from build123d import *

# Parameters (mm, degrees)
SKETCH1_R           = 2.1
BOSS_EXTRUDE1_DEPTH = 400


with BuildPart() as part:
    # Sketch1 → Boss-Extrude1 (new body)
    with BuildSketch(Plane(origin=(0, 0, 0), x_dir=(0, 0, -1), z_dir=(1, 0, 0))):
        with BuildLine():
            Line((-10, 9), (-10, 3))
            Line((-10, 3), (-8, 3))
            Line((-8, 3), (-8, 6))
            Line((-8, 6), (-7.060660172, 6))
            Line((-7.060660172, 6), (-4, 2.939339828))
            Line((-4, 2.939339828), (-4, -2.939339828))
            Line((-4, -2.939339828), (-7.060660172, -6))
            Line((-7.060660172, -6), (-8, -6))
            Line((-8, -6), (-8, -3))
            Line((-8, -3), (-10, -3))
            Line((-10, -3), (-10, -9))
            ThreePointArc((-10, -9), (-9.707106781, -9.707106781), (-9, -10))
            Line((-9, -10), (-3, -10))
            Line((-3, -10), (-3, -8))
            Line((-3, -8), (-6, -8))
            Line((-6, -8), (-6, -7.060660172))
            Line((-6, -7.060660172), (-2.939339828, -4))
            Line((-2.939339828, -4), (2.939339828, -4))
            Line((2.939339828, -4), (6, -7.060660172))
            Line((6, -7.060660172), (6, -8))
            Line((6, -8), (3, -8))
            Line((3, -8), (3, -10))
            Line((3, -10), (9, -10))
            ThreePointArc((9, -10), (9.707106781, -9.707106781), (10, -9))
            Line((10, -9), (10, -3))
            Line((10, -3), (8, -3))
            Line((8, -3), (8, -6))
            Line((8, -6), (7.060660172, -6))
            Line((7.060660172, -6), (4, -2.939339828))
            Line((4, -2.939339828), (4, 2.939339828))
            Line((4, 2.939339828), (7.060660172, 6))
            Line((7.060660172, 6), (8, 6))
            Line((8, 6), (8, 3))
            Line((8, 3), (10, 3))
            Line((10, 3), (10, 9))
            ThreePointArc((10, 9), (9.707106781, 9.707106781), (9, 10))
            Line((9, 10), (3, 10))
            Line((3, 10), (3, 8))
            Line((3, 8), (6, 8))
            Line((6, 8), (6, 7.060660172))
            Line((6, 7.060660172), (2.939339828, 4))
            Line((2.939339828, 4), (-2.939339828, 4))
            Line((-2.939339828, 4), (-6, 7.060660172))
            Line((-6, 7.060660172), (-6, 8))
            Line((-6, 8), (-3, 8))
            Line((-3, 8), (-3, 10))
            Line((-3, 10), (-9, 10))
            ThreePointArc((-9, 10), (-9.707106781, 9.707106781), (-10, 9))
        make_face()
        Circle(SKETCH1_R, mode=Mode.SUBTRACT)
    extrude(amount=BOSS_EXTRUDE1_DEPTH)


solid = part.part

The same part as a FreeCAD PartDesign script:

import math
import FreeCAD as App
import Part
import Sketcher
from FreeCAD import Vector

doc = App.newDocument("Part")
body = doc.addObject("PartDesign::Body", "Body")

# Sketch on YZ plane
sketch1 = doc.addObject("Sketcher::SketchObject", "Sketch")
body.addObject(sketch1)
sketch1.AttachmentSupport = (doc.YZ_Plane, [""])
sketch1.MapMode = "FlatFace"
sketch1.addGeometry([
    Part.LineSegment(Vector(9, 10, 0), Vector(3, 10, 0)),  # 0
    Part.LineSegment(Vector(3, 10, 0), Vector(3, 8, 0)),  # 1
    Part.LineSegment(Vector(3, 8, 0), Vector(6, 8, 0)),  # 2
    Part.LineSegment(Vector(6, 8, 0), Vector(6, 7.1, 0)),  # 3
    Part.LineSegment(Vector(6, 7.1, 0), Vector(2.9, 4, 0)),  # 4
    Part.LineSegment(Vector(2.9, 4, 0), Vector(-2.9, 4, 0)),  # 5
    Part.LineSegment(Vector(-2.9, 4, 0), Vector(-6, 7.1, 0)),  # 6
    Part.LineSegment(Vector(-6, 7.1, 0), Vector(-6, 8, 0)),  # 7
    Part.LineSegment(Vector(-6, 8, 0), Vector(-3, 8, 0)),  # 8
    Part.LineSegment(Vector(-3, 8, 0), Vector(-3, 10, 0)),  # 9
    Part.LineSegment(Vector(-3, 10, 0), Vector(-9, 10, 0)),  # 10
    Part.ArcOfCircle(Part.Circle(Vector(-9, 9, 0), Vector(0, 0, 1), 1), math.radians(90), math.radians(180)),  # 11
    Part.LineSegment(Vector(-10, 9, 0), Vector(-10, 3, 0)),  # 12
    Part.LineSegment(Vector(-10, 3, 0), Vector(-8, 3, 0)),  # 13
    Part.LineSegment(Vector(-8, 3, 0), Vector(-8, 6, 0)),  # 14
    Part.LineSegment(Vector(-8, 6, 0), Vector(-7.1, 6, 0)),  # 15
    Part.LineSegment(Vector(-7.1, 6, 0), Vector(-4, 2.9, 0)),  # 16
    Part.LineSegment(Vector(-4, 2.9, 0), Vector(-4, -2.9, 0)),  # 17
    Part.LineSegment(Vector(-4, -2.9, 0), Vector(-7.1, -6, 0)),  # 18
    Part.LineSegment(Vector(-7.1, -6, 0), Vector(-8, -6, 0)),  # 19
    Part.LineSegment(Vector(-8, -6, 0), Vector(-8, -3, 0)),  # 20
    Part.LineSegment(Vector(-8, -3, 0), Vector(-10, -3, 0)),  # 21
    Part.LineSegment(Vector(-10, -3, 0), Vector(-10, -9, 0)),  # 22
    Part.ArcOfCircle(Part.Circle(Vector(-9, -9, 0), Vector(0, 0, 1), 1), math.radians(-180), math.radians(-90)),  # 23
    Part.LineSegment(Vector(-9, -10, 0), Vector(-3, -10, 0)),  # 24
    Part.LineSegment(Vector(-3, -10, 0), Vector(-3, -8, 0)),  # 25
    Part.LineSegment(Vector(-3, -8, 0), Vector(-6, -8, 0)),  # 26
    Part.LineSegment(Vector(-6, -8, 0), Vector(-6, -7.1, 0)),  # 27
    Part.LineSegment(Vector(-6, -7.1, 0), Vector(-2.9, -4, 0)),  # 28
    Part.LineSegment(Vector(-2.9, -4, 0), Vector(2.9, -4, 0)),  # 29
    Part.LineSegment(Vector(2.9, -4, 0), Vector(6, -7.1, 0)),  # 30
    Part.LineSegment(Vector(6, -7.1, 0), Vector(6, -8, 0)),  # 31
    Part.LineSegment(Vector(6, -8, 0), Vector(3, -8, 0)),  # 32
    Part.LineSegment(Vector(3, -8, 0), Vector(3, -10, 0)),  # 33
    Part.LineSegment(Vector(3, -10, 0), Vector(9, -10, 0)),  # 34
    Part.ArcOfCircle(Part.Circle(Vector(9, -9, 0), Vector(0, 0, 1), 1), math.radians(-90), math.radians(0)),  # 35
    Part.LineSegment(Vector(10, -9, 0), Vector(10, -3, 0)),  # 36
    Part.LineSegment(Vector(10, -3, 0), Vector(8, -3, 0)),  # 37
    Part.LineSegment(Vector(8, -3, 0), Vector(8, -6, 0)),  # 38
    Part.LineSegment(Vector(8, -6, 0), Vector(7.1, -6, 0)),  # 39
    Part.LineSegment(Vector(7.1, -6, 0), Vector(4, -2.9, 0)),  # 40
    Part.LineSegment(Vector(4, -2.9, 0), Vector(4, 2.9, 0)),  # 41
    Part.LineSegment(Vector(4, 2.9, 0), Vector(7.1, 6, 0)),  # 42
    Part.LineSegment(Vector(7.1, 6, 0), Vector(8, 6, 0)),  # 43
    Part.LineSegment(Vector(8, 6, 0), Vector(8, 3, 0)),  # 44
    Part.LineSegment(Vector(8, 3, 0), Vector(10, 3, 0)),  # 45
    Part.LineSegment(Vector(10, 3, 0), Vector(10, 9, 0)),  # 46
    Part.ArcOfCircle(Part.Circle(Vector(9, 9, 0), Vector(0, 0, 1), 1), math.radians(0), math.radians(90)),  # 47
    Part.Circle(Vector(0, 0, 0), Vector(0, 0, 1), 2.1),  # 48
], False)
sketch1.addConstraint([
    Sketcher.Constraint("Coincident", 0, 2, 1, 1),
    Sketcher.Constraint("Coincident", 1, 2, 2, 1),
    Sketcher.Constraint("Coincident", 2, 2, 3, 1),
    Sketcher.Constraint("Coincident", 3, 2, 4, 1),
    Sketcher.Constraint("Coincident", 4, 2, 5, 1),
    Sketcher.Constraint("Coincident", 5, 2, 6, 1),
    Sketcher.Constraint("Coincident", 6, 2, 7, 1),
    Sketcher.Constraint("Coincident", 7, 2, 8, 1),
    Sketcher.Constraint("Coincident", 8, 2, 9, 1),
    Sketcher.Constraint("Coincident", 9, 2, 10, 1),
    Sketcher.Constraint("Tangent", 10, 2, 11, 1),
    Sketcher.Constraint("Tangent", 11, 2, 12, 1),
    Sketcher.Constraint("Coincident", 12, 2, 13, 1),
    Sketcher.Constraint("Coincident", 13, 2, 14, 1),
    Sketcher.Constraint("Coincident", 14, 2, 15, 1),
    Sketcher.Constraint("Coincident", 15, 2, 16, 1),
    Sketcher.Constraint("Coincident", 16, 2, 17, 1),
    Sketcher.Constraint("Coincident", 17, 2, 18, 1),
    Sketcher.Constraint("Coincident", 18, 2, 19, 1),
    Sketcher.Constraint("Coincident", 19, 2, 20, 1),
    Sketcher.Constraint("Coincident", 20, 2, 21, 1),
    Sketcher.Constraint("Coincident", 21, 2, 22, 1),
    Sketcher.Constraint("Tangent", 22, 2, 23, 1),
    Sketcher.Constraint("Tangent", 23, 2, 24, 1),
    Sketcher.Constraint("Coincident", 24, 2, 25, 1),
    Sketcher.Constraint("Coincident", 25, 2, 26, 1),
    Sketcher.Constraint("Coincident", 26, 2, 27, 1),
    Sketcher.Constraint("Coincident", 27, 2, 28, 1),
    Sketcher.Constraint("Coincident", 28, 2, 29, 1),
    Sketcher.Constraint("Coincident", 29, 2, 30, 1),
    Sketcher.Constraint("Coincident", 30, 2, 31, 1),
    Sketcher.Constraint("Coincident", 31, 2, 32, 1),
    Sketcher.Constraint("Coincident", 32, 2, 33, 1),
    Sketcher.Constraint("Coincident", 33, 2, 34, 1),
    Sketcher.Constraint("Tangent", 34, 2, 35, 1),
    Sketcher.Constraint("Tangent", 35, 2, 36, 1),
    Sketcher.Constraint("Coincident", 36, 2, 37, 1),
    Sketcher.Constraint("Coincident", 37, 2, 38, 1),
    Sketcher.Constraint("Coincident", 38, 2, 39, 1),
    Sketcher.Constraint("Coincident", 39, 2, 40, 1),
    Sketcher.Constraint("Coincident", 40, 2, 41, 1),
    Sketcher.Constraint("Coincident", 41, 2, 42, 1),
    Sketcher.Constraint("Coincident", 42, 2, 43, 1),
    Sketcher.Constraint("Coincident", 43, 2, 44, 1),
    Sketcher.Constraint("Coincident", 44, 2, 45, 1),
    Sketcher.Constraint("Coincident", 45, 2, 46, 1),
    Sketcher.Constraint("Tangent", 46, 2, 47, 1),
    Sketcher.Constraint("Tangent", 47, 2, 0, 1),
    Sketcher.Constraint("Horizontal", 0),
    Sketcher.Constraint("Vertical", 1),
    Sketcher.Constraint("Horizontal", 2),
    Sketcher.Constraint("Vertical", 3),
    Sketcher.Constraint("Horizontal", 5),
    Sketcher.Constraint("Vertical", 7),
    Sketcher.Constraint("Horizontal", 8),
    Sketcher.Constraint("Vertical", 9),
    Sketcher.Constraint("Horizontal", 10),
    Sketcher.Constraint("Vertical", 12),
    Sketcher.Constraint("Horizontal", 13),
    Sketcher.Constraint("Vertical", 14),
    Sketcher.Constraint("Horizontal", 15),
    Sketcher.Constraint("Vertical", 17),
    Sketcher.Constraint("Horizontal", 19),
    Sketcher.Constraint("Vertical", 20),
    Sketcher.Constraint("Horizontal", 21),
    Sketcher.Constraint("Vertical", 22),
    Sketcher.Constraint("Horizontal", 24),
    Sketcher.Constraint("Vertical", 25),
    Sketcher.Constraint("Horizontal", 26),
    Sketcher.Constraint("Vertical", 27),
    Sketcher.Constraint("Horizontal", 29),
    Sketcher.Constraint("Vertical", 31),
    Sketcher.Constraint("Horizontal", 32),
    Sketcher.Constraint("Vertical", 33),
    Sketcher.Constraint("Horizontal", 34),
    Sketcher.Constraint("Vertical", 36),
    Sketcher.Constraint("Horizontal", 37),
    Sketcher.Constraint("Vertical", 38),
    Sketcher.Constraint("Horizontal", 39),
    Sketcher.Constraint("Vertical", 41),
    Sketcher.Constraint("Horizontal", 43),
    Sketcher.Constraint("Vertical", 44),
    Sketcher.Constraint("Horizontal", 45),
    Sketcher.Constraint("Vertical", 46),
    Sketcher.Constraint("Coincident", 48, 3, -1, 1),
    Sketcher.Constraint("Equal", 11, 23),
    Sketcher.Constraint("Equal", 23, 35),
    Sketcher.Constraint("Equal", 35, 47),
    Sketcher.Constraint("Symmetric", 11, 3, 35, 3, -1, 1),
    Sketcher.Constraint("Symmetric", 23, 3, 47, 3, -1, 1),
    Sketcher.Constraint("Symmetric", 1, 2, 25, 2, -1, 1),
    Sketcher.Constraint("Symmetric", 3, 2, 27, 2, -1, 1),
    Sketcher.Constraint("Symmetric", 4, 2, 28, 2, -1, 1),
    Sketcher.Constraint("Symmetric", 6, 2, 30, 2, -1, 1),
    Sketcher.Constraint("Symmetric", 8, 2, 32, 2, -1, 1),
    Sketcher.Constraint("Symmetric", 13, 2, 37, 2, -1, 1),
    Sketcher.Constraint("Symmetric", 15, 2, 39, 2, -1, 1),
    Sketcher.Constraint("Symmetric", 16, 2, 40, 2, -1, 1),
    Sketcher.Constraint("Symmetric", 18, 2, 42, 2, -1, 1),
    Sketcher.Constraint("Symmetric", 20, 2, 44, 2, -1, 1),
    Sketcher.Constraint("Symmetric", 23, 3, 35, 3, -2),
    Sketcher.Constraint("Symmetric", 3, 2, 6, 2, -2),
    Sketcher.Constraint("Symmetric", 1, 2, 8, 2, -2),
    Sketcher.Constraint("Symmetric", 20, 2, 37, 2, -2),
    Sketcher.Constraint("Symmetric", 18, 2, 39, 2, -2),
    Sketcher.Constraint("Perpendicular", 4, 6),
    Sketcher.Constraint("Parallel", 6, 16),
    Sketcher.Constraint("Perpendicular", 16, 18),
    Sketcher.Constraint("Perpendicular", 28, 30),
    Sketcher.Constraint("Perpendicular", 40, 42),
    Sketcher.Constraint("Horizontal", 17, 2, 40, 2),
    Sketcher.Constraint("Equal", 45, 1),
    Sketcher.Constraint("Equal", 43, 3),
    Sketcher.Constraint("Equal", 34, 12),
    Sketcher.Constraint("Equal", 32, 14),
    Sketcher.Constraint("Equal", 29, 17),
    Sketcher.Constraint("Equal", 6, 16),
    Sketcher.Constraint("Radius", 11, 1.0),
    Sketcher.Constraint("Diameter", 48, 4.2),
    Sketcher.Constraint("DistanceX", 0, 2, 0, 1, 6.0),
    Sketcher.Constraint("DistanceX", 2, 1, 2, 2, 3.0),
    Sketcher.Constraint("DistanceX", 13, 1, 13, 2, 2.0),
    Sketcher.Constraint("DistanceX", 11, 3, -1, 1, 9.0),
    Sketcher.Constraint("DistanceY", -1, 1, 4, 2, 4.0),
    Sketcher.Constraint("DistanceX", 5, 2, 5, 1, 5.87868),
])
pad1 = doc.addObject("PartDesign::Pad", "Pad")
body.addObject(pad1)
pad1.Profile = sketch1
pad1.Length = 400

doc.recompute()
